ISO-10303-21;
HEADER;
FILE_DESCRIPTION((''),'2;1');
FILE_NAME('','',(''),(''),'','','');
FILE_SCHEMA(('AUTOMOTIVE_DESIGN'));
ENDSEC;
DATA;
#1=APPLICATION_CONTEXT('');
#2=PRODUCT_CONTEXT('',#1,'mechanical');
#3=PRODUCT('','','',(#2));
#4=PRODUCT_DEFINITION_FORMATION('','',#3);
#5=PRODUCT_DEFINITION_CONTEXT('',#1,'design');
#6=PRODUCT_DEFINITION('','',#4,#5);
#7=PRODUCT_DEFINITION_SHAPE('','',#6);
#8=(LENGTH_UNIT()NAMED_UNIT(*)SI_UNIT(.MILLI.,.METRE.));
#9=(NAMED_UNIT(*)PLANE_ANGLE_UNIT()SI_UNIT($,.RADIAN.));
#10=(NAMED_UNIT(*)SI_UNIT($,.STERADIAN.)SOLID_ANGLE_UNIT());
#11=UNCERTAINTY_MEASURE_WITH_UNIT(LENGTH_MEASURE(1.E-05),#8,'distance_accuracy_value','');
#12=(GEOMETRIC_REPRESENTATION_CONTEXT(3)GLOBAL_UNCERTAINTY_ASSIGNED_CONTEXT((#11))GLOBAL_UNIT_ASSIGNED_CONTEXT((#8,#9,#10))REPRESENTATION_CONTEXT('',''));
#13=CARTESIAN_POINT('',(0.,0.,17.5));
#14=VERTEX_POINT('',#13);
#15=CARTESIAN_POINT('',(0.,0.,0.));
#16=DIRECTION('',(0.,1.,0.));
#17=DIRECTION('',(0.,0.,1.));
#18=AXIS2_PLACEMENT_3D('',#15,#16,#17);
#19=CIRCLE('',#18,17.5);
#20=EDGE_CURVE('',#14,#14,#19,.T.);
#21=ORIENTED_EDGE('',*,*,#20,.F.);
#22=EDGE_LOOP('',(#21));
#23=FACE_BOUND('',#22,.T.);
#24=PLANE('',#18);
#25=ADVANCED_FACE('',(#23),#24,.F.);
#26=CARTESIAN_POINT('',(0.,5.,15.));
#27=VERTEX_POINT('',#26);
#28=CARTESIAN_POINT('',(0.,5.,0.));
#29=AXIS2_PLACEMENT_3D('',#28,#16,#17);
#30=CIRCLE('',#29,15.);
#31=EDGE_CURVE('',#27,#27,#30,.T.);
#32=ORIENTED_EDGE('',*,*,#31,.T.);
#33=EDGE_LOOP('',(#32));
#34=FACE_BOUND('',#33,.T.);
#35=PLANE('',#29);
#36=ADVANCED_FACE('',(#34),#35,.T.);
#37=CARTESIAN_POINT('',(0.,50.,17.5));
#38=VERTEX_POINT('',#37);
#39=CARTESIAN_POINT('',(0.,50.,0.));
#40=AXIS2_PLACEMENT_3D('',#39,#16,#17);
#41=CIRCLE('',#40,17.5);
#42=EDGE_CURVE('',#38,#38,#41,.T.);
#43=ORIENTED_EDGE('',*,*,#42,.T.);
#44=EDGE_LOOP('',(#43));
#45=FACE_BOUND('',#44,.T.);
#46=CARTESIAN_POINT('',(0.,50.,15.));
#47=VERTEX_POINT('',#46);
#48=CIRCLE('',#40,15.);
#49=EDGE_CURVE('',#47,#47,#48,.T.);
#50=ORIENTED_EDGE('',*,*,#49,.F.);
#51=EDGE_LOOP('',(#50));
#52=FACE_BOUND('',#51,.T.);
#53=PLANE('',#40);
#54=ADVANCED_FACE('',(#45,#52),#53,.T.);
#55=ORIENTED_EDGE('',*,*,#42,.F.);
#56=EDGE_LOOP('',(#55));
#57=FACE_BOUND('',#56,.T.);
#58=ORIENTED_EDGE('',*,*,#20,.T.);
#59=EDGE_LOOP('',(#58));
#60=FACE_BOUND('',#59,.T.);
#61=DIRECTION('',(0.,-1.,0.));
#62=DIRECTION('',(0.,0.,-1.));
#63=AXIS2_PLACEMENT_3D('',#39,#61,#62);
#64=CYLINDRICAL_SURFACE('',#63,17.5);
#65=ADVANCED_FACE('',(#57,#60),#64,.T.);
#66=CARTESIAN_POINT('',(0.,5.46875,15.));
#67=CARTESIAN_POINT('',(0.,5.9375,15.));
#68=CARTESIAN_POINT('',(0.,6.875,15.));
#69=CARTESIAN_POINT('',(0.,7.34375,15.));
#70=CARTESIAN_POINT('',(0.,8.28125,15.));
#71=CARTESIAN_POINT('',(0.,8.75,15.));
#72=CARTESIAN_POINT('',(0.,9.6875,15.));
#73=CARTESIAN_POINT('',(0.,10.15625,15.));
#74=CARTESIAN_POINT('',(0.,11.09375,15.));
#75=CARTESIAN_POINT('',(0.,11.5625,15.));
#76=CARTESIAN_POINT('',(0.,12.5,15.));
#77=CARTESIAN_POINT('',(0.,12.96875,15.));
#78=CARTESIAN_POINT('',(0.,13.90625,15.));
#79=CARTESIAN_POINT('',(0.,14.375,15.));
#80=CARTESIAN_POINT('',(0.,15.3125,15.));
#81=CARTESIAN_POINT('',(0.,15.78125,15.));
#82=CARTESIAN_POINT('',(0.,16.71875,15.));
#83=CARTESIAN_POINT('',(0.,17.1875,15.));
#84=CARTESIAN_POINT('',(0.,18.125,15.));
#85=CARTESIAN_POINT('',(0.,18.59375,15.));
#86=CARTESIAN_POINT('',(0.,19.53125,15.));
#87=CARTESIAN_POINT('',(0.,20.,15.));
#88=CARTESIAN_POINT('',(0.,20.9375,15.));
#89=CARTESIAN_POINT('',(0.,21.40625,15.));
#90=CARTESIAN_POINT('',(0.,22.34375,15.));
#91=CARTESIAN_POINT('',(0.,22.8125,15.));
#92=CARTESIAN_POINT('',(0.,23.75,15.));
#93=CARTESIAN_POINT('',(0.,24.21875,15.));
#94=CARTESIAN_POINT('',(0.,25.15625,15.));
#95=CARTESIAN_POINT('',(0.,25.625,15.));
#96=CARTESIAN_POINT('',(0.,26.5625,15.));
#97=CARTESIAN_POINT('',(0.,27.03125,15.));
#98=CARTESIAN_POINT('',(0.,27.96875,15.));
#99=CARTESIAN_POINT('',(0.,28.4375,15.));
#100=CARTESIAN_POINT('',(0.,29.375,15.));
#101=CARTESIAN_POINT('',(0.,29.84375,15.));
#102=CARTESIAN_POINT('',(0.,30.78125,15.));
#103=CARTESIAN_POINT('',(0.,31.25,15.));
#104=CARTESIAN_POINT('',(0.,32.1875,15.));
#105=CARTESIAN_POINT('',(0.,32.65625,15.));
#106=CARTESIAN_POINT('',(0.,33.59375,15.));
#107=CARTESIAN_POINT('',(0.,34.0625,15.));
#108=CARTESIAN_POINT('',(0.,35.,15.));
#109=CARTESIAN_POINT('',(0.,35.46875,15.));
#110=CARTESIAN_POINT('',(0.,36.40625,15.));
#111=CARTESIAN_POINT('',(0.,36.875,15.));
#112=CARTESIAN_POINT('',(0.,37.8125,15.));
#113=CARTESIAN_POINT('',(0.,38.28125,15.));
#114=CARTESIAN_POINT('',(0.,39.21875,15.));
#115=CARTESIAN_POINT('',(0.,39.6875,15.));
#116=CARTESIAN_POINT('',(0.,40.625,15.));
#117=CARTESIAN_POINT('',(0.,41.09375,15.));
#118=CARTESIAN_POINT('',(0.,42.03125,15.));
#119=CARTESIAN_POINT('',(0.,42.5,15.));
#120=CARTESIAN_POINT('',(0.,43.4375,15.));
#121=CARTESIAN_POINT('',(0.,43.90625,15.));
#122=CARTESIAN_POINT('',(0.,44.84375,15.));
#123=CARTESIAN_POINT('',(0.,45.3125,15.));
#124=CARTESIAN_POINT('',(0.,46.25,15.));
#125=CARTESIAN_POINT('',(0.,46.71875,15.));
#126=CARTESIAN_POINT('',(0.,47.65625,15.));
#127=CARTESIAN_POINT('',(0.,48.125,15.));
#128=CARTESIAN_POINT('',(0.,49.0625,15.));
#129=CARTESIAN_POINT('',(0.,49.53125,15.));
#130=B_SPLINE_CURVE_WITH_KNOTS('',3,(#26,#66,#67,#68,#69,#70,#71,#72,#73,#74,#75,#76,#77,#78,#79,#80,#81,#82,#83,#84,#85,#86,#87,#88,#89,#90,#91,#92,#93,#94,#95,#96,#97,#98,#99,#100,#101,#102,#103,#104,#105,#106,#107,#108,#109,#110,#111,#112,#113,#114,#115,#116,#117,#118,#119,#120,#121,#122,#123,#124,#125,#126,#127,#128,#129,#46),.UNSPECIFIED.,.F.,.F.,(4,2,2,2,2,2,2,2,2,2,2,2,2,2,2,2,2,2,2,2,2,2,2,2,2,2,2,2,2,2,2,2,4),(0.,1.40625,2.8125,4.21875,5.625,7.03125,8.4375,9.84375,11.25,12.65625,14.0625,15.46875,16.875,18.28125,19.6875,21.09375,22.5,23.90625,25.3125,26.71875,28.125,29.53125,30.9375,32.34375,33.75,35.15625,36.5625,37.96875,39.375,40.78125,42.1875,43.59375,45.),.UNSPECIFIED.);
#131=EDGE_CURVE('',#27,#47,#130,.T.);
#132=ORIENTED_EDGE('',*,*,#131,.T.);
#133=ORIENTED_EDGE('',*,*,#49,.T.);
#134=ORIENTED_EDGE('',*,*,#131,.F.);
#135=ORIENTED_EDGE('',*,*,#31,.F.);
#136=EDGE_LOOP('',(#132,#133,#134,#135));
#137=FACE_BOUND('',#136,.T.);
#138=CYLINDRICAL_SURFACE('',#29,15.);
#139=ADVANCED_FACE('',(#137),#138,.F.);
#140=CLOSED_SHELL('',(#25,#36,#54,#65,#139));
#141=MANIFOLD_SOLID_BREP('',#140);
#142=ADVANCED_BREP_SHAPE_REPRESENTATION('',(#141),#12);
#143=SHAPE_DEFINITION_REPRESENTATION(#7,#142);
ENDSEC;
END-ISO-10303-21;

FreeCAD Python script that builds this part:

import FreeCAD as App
import Part
import Sketcher

V = App.Vector
Q = App.Units.Quantity

doc = App.newDocument("Part")
body = doc.addObject("PartDesign::Body", "Body")

# Sketch on XZ plane
sketch1 = body.newObject("Sketcher::SketchObject", "Sketch")
sketch1.AttachmentSupport = (doc.getObject("XZ_Plane"), [""])
sketch1.MapMode = "FlatFace"
sketch1.addGeometry(Part.Circle(V(0, 0, 0), V(0, 0, 1), 17.5), False)
sketch1.addConstraint(Sketcher.Constraint("Coincident", 0, 3, -1, 1))
sketch1.addConstraint(Sketcher.Constraint("Diameter", 0, Q("35 mm")))
pad1 = body.newObject("PartDesign::Pad", "Pad")
pad1.Profile = sketch1
pad1.Length = 50
pad1.Reversed = True

# Sketch on XZ plane
sketch2 = body.newObject("Sketcher::SketchObject", "Sketch001")
sketch2.AttachmentSupport = (doc.getObject("XZ_Plane"), [""])
sketch2.MapMode = "FlatFace"
sketch2.AttachmentOffset = App.Placement(V(0, 0, -50), App.Rotation())
sketch2.addGeometry(Part.Circle(V(0, 0, 0), V(0, 0, 1), 15), False)
sketch2.addConstraint(Sketcher.Constraint("Coincident", 0, 3, -1, 1))
sketch2.addConstraint(Sketcher.Constraint("Diameter", 0, Q("30 mm")))
pocket1 = body.newObject("PartDesign::Pocket", "Pocket")
pocket1.Profile = sketch2
pocket1.Length = 45
pocket1.Reversed = True

doc.recompute()
